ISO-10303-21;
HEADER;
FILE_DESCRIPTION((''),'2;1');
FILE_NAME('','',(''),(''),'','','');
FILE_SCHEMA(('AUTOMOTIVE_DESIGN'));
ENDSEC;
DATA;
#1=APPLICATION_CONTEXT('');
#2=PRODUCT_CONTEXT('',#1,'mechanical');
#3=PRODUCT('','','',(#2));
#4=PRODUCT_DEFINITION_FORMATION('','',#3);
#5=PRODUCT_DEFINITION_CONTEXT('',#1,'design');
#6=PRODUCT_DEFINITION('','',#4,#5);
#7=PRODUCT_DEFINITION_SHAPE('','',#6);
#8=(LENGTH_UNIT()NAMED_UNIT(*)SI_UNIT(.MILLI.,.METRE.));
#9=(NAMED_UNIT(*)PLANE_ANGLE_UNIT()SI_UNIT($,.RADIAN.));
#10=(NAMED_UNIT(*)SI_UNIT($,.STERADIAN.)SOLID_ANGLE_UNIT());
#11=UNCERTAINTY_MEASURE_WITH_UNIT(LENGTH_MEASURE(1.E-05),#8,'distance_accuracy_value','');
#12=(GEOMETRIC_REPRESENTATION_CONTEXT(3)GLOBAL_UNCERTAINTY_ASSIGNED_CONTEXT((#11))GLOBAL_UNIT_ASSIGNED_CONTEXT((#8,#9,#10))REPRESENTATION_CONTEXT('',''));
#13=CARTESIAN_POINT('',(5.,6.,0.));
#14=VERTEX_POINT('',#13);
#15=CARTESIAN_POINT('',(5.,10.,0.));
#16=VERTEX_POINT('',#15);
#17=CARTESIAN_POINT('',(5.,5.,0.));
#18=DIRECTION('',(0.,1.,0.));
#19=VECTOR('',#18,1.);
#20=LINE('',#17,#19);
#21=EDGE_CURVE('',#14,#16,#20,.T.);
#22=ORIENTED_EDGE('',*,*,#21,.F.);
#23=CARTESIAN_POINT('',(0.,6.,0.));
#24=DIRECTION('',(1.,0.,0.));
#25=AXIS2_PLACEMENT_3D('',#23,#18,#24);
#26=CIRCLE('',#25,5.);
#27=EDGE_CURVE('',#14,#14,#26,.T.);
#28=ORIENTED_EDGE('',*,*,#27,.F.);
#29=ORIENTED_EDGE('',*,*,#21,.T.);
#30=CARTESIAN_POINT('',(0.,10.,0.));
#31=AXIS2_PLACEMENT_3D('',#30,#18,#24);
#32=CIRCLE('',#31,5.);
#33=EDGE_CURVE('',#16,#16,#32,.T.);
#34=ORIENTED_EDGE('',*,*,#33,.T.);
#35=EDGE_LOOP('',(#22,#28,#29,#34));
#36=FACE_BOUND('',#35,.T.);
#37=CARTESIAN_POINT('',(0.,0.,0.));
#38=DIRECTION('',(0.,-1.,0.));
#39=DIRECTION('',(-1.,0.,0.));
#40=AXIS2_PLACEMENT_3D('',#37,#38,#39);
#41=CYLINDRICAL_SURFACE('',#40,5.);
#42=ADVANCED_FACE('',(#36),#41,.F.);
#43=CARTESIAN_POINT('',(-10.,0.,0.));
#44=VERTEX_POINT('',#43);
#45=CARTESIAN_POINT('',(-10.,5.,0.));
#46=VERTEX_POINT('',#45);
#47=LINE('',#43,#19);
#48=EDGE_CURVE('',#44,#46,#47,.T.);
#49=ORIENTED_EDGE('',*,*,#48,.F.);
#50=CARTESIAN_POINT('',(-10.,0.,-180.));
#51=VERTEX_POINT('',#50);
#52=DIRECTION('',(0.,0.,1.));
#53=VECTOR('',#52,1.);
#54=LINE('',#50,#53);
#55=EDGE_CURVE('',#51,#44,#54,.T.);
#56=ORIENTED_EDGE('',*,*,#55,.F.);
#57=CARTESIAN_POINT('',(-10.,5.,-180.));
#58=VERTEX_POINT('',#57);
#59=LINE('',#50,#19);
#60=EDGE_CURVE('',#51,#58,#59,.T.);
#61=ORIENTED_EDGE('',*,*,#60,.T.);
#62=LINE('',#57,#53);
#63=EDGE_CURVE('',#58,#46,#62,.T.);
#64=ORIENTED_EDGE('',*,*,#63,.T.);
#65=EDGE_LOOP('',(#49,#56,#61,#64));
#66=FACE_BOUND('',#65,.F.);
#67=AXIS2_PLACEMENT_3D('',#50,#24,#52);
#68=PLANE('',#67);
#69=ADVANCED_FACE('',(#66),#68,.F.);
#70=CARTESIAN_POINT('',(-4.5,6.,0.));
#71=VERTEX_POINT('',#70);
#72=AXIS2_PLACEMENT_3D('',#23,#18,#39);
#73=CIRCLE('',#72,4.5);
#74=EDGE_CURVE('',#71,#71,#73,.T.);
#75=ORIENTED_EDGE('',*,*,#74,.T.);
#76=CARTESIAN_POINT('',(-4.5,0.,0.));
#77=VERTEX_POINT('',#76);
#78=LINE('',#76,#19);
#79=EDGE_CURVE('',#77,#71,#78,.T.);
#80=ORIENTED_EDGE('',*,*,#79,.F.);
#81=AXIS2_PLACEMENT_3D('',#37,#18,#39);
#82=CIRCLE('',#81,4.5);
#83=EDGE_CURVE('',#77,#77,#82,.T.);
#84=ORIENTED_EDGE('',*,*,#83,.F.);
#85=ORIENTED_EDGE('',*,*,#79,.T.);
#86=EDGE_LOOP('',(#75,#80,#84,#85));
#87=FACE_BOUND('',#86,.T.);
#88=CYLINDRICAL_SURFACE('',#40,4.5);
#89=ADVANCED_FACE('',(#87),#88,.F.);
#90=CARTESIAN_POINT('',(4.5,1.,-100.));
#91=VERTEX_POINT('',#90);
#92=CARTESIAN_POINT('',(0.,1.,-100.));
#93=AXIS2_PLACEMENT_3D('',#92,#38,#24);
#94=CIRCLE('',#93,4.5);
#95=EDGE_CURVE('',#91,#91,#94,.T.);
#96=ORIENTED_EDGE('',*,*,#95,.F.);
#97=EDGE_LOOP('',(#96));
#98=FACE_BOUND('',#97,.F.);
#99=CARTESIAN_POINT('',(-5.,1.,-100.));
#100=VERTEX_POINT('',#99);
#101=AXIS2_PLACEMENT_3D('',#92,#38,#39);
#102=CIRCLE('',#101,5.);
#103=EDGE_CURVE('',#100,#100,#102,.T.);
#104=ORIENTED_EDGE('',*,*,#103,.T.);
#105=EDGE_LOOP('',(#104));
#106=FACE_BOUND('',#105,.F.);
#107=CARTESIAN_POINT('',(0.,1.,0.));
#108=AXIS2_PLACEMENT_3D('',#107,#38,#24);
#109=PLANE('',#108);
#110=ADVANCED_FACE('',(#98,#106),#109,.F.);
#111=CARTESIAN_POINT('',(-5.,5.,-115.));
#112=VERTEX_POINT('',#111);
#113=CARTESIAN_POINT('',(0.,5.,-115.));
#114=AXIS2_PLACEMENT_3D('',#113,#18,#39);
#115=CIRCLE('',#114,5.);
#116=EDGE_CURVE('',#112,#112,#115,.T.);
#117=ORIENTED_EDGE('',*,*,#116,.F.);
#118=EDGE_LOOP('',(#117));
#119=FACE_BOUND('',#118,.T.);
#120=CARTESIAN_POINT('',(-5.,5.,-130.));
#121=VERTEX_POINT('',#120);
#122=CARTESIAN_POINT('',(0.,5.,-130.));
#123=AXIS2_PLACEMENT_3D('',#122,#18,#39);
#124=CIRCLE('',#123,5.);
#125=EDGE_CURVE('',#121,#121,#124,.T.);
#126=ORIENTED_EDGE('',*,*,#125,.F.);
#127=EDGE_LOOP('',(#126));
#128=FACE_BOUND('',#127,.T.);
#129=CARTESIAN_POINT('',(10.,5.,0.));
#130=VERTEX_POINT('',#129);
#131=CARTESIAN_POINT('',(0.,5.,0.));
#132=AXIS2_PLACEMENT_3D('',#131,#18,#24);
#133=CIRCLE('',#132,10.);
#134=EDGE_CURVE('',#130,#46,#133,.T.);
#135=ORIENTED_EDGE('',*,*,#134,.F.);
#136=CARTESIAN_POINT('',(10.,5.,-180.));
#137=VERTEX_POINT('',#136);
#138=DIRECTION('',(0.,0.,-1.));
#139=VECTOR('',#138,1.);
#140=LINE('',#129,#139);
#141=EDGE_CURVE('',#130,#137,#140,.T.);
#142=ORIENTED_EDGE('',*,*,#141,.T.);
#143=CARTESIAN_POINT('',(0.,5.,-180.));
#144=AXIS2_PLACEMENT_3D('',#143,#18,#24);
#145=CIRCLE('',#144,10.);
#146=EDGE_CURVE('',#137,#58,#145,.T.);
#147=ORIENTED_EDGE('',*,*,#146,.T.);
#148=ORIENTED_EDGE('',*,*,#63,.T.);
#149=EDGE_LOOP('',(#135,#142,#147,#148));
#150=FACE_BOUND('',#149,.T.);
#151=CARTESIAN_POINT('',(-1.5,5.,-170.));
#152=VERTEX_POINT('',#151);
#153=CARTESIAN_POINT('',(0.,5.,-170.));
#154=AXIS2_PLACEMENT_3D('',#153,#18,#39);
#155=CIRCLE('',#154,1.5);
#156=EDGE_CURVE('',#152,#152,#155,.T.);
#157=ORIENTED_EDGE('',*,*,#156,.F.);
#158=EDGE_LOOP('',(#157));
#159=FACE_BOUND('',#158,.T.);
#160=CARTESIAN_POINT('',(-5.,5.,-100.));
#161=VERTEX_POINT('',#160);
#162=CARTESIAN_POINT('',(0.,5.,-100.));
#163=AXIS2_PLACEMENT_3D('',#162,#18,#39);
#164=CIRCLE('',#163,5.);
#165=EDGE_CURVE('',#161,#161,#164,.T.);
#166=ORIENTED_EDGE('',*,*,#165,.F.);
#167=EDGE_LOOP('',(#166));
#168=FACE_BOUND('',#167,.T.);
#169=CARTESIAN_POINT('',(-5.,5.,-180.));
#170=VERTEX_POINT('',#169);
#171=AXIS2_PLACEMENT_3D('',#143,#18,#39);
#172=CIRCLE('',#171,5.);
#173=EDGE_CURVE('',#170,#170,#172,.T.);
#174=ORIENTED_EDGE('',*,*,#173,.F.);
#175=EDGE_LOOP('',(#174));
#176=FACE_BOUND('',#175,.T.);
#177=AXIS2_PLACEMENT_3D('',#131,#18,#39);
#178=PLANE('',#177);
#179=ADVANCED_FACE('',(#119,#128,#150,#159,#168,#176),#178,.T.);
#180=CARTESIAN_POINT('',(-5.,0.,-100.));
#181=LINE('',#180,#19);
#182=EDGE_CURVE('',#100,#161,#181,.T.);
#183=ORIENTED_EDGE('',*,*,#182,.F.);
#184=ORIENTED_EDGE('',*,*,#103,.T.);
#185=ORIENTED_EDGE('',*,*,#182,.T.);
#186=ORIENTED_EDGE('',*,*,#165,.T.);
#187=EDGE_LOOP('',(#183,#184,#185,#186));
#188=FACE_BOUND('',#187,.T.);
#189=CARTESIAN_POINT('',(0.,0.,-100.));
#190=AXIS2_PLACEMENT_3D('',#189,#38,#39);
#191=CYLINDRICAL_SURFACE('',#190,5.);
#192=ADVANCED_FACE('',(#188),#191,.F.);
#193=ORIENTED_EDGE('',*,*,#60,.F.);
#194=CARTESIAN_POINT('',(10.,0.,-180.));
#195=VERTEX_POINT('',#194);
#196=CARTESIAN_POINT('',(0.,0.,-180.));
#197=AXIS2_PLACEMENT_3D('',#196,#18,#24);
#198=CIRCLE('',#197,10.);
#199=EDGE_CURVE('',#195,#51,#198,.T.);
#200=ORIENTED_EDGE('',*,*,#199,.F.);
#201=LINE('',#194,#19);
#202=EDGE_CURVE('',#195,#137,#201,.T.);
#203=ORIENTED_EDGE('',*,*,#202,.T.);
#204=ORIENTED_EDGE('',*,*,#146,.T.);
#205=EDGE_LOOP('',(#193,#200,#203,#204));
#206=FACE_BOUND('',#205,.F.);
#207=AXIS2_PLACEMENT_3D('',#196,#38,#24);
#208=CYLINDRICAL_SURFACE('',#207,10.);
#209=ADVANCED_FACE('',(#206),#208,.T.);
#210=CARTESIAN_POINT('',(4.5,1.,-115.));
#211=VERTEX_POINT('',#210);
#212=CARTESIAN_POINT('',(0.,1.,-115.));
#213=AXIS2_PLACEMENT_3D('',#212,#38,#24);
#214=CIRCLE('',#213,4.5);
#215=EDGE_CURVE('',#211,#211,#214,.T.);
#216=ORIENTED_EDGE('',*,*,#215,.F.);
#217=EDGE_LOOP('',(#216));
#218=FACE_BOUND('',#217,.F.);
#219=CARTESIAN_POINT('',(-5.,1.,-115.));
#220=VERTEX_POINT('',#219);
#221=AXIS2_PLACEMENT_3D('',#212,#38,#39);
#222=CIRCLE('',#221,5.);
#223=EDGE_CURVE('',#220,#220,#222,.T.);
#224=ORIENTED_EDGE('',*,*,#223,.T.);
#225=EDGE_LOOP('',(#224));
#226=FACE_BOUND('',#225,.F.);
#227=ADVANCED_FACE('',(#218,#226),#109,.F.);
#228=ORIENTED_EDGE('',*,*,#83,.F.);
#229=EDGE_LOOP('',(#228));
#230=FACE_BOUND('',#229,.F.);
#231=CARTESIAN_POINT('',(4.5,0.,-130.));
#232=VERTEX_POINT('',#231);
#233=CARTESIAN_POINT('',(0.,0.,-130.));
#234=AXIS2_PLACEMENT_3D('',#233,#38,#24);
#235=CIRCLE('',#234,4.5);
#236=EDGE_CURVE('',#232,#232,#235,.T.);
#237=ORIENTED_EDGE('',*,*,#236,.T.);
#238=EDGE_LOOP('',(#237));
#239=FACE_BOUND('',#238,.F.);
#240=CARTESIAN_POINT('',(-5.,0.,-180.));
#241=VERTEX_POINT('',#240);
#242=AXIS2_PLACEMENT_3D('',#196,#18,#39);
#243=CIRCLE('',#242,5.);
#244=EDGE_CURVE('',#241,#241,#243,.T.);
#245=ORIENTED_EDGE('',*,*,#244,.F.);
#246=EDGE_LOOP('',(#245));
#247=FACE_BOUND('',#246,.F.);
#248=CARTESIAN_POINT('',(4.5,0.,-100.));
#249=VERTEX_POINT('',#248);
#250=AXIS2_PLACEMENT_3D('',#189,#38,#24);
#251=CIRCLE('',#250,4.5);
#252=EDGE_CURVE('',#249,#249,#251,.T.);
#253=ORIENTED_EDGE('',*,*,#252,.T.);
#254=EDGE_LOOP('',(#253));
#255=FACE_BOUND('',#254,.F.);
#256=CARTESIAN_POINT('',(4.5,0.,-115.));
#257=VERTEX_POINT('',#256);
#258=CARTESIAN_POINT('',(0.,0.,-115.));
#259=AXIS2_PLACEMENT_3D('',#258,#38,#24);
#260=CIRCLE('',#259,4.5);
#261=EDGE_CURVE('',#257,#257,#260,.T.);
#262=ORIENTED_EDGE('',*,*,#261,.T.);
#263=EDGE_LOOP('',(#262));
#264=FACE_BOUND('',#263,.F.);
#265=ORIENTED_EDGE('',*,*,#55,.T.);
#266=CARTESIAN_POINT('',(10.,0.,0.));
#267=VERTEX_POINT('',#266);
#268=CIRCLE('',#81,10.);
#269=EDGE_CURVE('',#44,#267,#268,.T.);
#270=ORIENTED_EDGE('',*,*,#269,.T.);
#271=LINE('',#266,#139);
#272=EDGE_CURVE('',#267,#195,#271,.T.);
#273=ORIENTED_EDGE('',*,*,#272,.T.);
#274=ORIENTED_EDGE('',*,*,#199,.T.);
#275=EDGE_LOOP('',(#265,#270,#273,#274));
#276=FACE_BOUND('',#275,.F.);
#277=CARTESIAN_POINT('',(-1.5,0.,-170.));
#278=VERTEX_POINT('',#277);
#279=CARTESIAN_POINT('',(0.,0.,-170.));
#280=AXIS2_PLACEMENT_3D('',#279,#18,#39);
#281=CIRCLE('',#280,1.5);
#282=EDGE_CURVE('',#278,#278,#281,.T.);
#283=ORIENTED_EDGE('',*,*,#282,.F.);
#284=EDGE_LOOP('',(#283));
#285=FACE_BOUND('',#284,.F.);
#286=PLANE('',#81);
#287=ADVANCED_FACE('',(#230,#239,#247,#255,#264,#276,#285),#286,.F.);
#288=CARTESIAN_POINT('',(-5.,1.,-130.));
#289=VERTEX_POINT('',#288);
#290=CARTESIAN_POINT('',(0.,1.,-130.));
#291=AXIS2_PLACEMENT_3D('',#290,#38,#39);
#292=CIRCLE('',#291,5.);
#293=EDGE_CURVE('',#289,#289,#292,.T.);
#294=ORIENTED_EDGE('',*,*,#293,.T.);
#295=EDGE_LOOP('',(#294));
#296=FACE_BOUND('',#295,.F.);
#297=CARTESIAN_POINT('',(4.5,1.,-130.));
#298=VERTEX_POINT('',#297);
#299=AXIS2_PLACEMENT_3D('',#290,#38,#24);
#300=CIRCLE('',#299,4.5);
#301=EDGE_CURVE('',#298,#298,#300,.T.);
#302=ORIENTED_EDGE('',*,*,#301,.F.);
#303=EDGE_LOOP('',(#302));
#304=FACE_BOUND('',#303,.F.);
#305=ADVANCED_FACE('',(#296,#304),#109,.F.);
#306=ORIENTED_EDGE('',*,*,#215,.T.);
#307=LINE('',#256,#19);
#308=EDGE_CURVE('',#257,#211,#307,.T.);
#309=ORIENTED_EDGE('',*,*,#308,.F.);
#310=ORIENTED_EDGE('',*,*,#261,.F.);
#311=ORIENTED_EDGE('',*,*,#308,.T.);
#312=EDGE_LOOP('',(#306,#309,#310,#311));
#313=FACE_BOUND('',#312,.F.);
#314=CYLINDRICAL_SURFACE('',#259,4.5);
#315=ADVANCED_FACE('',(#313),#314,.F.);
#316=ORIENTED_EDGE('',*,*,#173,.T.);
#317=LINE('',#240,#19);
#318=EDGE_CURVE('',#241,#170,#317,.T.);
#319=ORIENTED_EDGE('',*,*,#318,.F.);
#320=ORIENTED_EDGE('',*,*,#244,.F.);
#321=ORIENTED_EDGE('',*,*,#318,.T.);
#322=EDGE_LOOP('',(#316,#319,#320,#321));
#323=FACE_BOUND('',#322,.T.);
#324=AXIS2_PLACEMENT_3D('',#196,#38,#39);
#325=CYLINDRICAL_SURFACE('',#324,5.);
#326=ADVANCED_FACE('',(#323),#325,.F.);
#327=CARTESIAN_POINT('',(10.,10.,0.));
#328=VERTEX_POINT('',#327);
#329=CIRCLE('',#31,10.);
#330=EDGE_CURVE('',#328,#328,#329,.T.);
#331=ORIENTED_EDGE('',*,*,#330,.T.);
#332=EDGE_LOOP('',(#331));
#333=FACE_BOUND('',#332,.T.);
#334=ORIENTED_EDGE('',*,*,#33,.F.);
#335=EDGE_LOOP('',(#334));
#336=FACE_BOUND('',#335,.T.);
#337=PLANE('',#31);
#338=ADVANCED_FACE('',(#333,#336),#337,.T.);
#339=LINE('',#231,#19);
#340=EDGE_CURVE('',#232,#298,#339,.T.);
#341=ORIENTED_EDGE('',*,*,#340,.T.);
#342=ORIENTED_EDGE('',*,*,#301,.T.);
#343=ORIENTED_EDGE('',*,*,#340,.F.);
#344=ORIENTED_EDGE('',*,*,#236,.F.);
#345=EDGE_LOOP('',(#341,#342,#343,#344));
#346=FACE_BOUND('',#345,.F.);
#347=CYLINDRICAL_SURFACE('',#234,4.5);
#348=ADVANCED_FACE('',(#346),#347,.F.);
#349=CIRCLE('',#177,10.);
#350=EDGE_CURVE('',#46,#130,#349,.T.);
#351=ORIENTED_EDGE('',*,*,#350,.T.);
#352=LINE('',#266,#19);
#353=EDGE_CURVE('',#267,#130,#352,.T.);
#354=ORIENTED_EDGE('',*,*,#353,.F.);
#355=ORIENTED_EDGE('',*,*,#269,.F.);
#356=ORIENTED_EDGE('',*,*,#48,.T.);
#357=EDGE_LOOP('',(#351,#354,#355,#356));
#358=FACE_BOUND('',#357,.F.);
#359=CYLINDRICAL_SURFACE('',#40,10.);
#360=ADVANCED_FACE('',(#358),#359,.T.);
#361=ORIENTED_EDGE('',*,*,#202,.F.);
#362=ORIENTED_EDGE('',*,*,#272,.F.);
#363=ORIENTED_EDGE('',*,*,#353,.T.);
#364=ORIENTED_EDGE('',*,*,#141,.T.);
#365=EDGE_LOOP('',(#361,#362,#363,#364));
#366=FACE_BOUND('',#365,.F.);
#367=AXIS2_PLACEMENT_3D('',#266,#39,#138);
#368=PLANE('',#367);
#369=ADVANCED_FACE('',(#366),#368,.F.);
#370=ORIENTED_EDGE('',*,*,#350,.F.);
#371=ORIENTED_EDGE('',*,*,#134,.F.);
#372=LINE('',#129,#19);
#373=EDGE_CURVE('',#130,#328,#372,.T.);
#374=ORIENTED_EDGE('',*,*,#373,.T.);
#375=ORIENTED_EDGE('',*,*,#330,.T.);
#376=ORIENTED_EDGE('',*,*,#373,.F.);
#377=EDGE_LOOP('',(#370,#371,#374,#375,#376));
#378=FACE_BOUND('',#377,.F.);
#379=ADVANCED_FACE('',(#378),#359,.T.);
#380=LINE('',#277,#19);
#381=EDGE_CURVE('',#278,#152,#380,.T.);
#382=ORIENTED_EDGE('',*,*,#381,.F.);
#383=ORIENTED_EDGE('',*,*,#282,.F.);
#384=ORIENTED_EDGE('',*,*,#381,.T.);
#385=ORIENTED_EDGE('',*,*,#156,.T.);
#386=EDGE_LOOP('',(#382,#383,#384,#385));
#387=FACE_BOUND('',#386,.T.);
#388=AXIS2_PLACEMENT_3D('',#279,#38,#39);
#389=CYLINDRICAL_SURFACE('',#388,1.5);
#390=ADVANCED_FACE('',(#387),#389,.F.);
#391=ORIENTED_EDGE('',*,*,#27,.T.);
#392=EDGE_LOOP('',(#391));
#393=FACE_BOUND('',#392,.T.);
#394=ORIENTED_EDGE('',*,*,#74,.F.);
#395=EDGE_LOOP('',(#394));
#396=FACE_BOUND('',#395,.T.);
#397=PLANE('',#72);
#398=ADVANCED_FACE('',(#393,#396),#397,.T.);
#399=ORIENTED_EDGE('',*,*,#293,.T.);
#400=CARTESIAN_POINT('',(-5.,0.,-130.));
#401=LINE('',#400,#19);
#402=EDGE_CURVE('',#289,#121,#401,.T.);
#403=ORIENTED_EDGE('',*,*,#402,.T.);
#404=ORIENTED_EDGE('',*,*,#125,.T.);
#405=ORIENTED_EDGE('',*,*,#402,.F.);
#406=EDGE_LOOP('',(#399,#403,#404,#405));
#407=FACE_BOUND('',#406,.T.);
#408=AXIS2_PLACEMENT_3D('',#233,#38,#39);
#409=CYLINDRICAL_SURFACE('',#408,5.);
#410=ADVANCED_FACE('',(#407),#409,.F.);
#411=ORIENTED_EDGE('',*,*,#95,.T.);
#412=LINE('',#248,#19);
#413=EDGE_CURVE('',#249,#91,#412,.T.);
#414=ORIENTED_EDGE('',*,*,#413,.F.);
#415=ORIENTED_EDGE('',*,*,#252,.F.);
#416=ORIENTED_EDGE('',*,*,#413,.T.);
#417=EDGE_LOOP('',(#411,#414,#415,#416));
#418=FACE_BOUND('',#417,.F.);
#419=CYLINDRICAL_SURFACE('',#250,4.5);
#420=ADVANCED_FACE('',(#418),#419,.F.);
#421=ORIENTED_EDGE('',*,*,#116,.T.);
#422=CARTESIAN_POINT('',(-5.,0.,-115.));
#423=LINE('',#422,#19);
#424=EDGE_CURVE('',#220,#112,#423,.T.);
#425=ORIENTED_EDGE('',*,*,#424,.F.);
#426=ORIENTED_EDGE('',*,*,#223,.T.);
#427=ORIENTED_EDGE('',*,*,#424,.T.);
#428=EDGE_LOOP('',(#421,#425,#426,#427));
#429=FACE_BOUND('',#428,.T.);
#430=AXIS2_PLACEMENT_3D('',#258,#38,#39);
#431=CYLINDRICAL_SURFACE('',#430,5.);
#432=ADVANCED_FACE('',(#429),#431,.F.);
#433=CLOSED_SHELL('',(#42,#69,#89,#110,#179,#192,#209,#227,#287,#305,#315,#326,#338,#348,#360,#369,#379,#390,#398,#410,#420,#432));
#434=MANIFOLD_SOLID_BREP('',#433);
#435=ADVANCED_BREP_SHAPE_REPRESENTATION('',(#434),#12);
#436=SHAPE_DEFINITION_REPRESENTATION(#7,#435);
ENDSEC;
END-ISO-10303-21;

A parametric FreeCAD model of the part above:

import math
import FreeCAD as App
import Part
import Sketcher

V = App.Vector
Q = App.Units.Quantity

doc = App.newDocument("Part")
body = doc.addObject("PartDesign::Body", "Body")

# Sketch on XZ plane
sketch1 = body.newObject("Sketcher::SketchObject", "Sketch")
sketch1.AttachmentSupport = (doc.getObject("XZ_Plane"), [""])
sketch1.MapMode = "FlatFace"
sketch1.addGeometry(Part.ArcOfCircle(Part.Circle(V(0, 0, 0), V(0, 0, 1), 10), math.radians(0), math.radians(180)), False)
sketch1.addGeometry(Part.LineSegment(V(10, 0, 0), V(10, -180, 0)), False)
sketch1.addGeometry(Part.ArcOfCircle(Part.Circle(V(0, -180, 0), V(0, 0, 1), 10), math.radians(180), math.radians(360)), False)
sketch1.addGeometry(Part.LineSegment(V(-10, -180, 0), V(-10, 0, 0)), False)
sketch1.addGeometry(Part.Circle(V(0, -180, 0), V(0, 0, 1), 5), False)
sketch1.addGeometry(Part.Circle(V(0, -170, 0), V(0, 0, 1), 1.5), False)
sketch1.addGeometry(Part.Circle(V(0, -130, 0), V(0, 0, 1), 5), False)
sketch1.addGeometry(Part.Circle(V(0, -115, 0), V(0, 0, 1), 5), False)
sketch1.addGeometry(Part.Circle(V(0, -100, 0), V(0, 0, 1), 5), False)
sketch1.addGeometry(Part.Circle(V(0, 0, 0), V(0, 0, 1), 5), False)
sketch1.addConstraint(Sketcher.Constraint("Tangent", 0, 1, 1, 1))
sketch1.addConstraint(Sketcher.Constraint("Tangent", 1, 2, 2, 2))
sketch1.addConstraint(Sketcher.Constraint("Tangent", 2, 1, 3, 1))
sketch1.addConstraint(Sketcher.Constraint("Tangent", 3, 2, 0, 2))
sketch1.addConstraint(Sketcher.Constraint("Vertical", 1))
sketch1.addConstraint(Sketcher.Constraint("Vertical", 3))
sketch1.addConstraint(Sketcher.Constraint("Coincident", 0, 3, -1, 1))
sketch1.addConstraint(Sketcher.Constraint("Coincident", 9, 3, -1, 1))
sketch1.addConstraint(Sketcher.Constraint("Coincident", 4, 3, 2, 3))
sketch1.addConstraint(Sketcher.Constraint("Equal", 4, 6))
sketch1.addConstraint(Sketcher.Constraint("Equal", 6, 7))
sketch1.addConstraint(Sketcher.Constraint("Equal", 7, 8))
sketch1.addConstraint(Sketcher.Constraint("Equal", 8, 9))
sketch1.addConstraint(Sketcher.Constraint("PointOnObject", 5, 3, -2))
sketch1.addConstraint(Sketcher.Constraint("PointOnObject", 6, 3, -2))
sketch1.addConstraint(Sketcher.Constraint("PointOnObject", 7, 3, -2))
sketch1.addConstraint(Sketcher.Constraint("PointOnObject", 8, 3, -2))
sketch1.addConstraint(Sketcher.Constraint("Diameter", 4, Q("10 mm")))
sketch1.addConstraint(Sketcher.Constraint("Diameter", 5, Q("3 mm")))
sketch1.addConstraint(Sketcher.Constraint("Radius", 0, Q("10 mm")))
sketch1.addConstraint(Sketcher.Constraint("DistanceY", 1, 2, 1, 1, Q("180 mm")))
sketch1.addConstraint(Sketcher.Constraint("DistanceY", 2, 3, 5, 3, Q("10 mm")))
sketch1.addConstraint(Sketcher.Constraint("DistanceY", 2, 3, 6, 3, Q("50 mm")))
sketch1.addConstraint(Sketcher.Constraint("DistanceY", 6, 3, 7, 3, Q("15 mm")))
sketch1.addConstraint(Sketcher.Constraint("DistanceY", 7, 3, 8, 3, Q("15 mm")))
pad1 = body.newObject("PartDesign::Pad", "Pad")
pad1.Profile = sketch1
pad1.Length = 5
pad1.Reversed = True

# Sketch on XZ plane
sketch2 = body.newObject("Sketcher::SketchObject", "Sketch001")
sketch2.AttachmentSupport = (doc.getObject("XZ_Plane"), [""])
sketch2.MapMode = "FlatFace"
sketch2.AttachmentOffset = App.Placement(V(0, 0, -5), App.Rotation())
sketch2.addGeometry(Part.Circle(V(0, 0, 0), V(0, 0, 1), 10), False)
sketch2.addGeometry(Part.Circle(V(0, 0, 0), V(0, 0, 1), 5), False)
sketch2.addConstraint(Sketcher.Constraint("Coincident", 0, 3, -1, 1))
sketch2.addConstraint(Sketcher.Constraint("Coincident", 1, 3, -1, 1))
sketch2.addConstraint(Sketcher.Constraint("Diameter", 0, Q("20 mm")))
sketch2.addConstraint(Sketcher.Constraint("Diameter", 1, Q("10 mm")))
pad2 = body.newObject("PartDesign::Pad", "Pad001")
pad2.Profile = sketch2
pad2.Length = 5
pad2.Reversed = True

# Sketch on XZ plane
sketch3 = body.newObject("Sketcher::SketchObject", "Sketch002")
sketch3.AttachmentSupport = (doc.getObject("XZ_Plane"), [""])
sketch3.MapMode = "FlatFace"
sketch3.addGeometry(Part.Circle(V(0, 0, 0), V(0, 0, 1), 5), False)
sketch3.addGeometry(Part.Circle(V(0, 0, 0), V(0, 0, 1), 4.5), False)
sketch3.addConstraint(Sketcher.Constraint("Coincident", 0, 3, -1, 1))
sketch3.addConstraint(Sketcher.Constraint("Coincident", 1, 3, -1, 1))
sketch3.addConstraint(Sketcher.Constraint("Diameter", 0, Q("10 mm")))
sketch3.addConstraint(Sketcher.Constraint("Diameter", 1, Q("9 mm")))
pad3 = body.newObject("PartDesign::Pad", "Pad002")
pad3.Profile = sketch3
pad3.Length = 6
pad3.Reversed = True

# Sketch on XZ plane
sketch4 = body.newObject("Sketcher::SketchObject", "Sketch003")
sketch4.AttachmentSupport = (doc.getObject("XZ_Plane"), [""])
sketch4.MapMode = "FlatFace"
sketch4.addGeometry(Part.Circle(V(0, -130, 0), V(0, 0, 1), 5), False)
sketch4.addGeometry(Part.Circle(V(0, -130, 0), V(0, 0, 1), 4.5), False)
sketch4.addGeometry(Part.Circle(V(0, -100, 0), V(0, 0, 1), 5), False)
sketch4.addGeometry(Part.Circle(V(0, -100, 0), V(0, 0, 1), 4.5), False)
sketch4.addGeometry(Part.Circle(V(0, -115, 0), V(0, 0, 1), 5), False)
sketch4.addGeometry(Part.Circle(V(0, -115, 0), V(0, 0, 1), 4.5), False)
sketch4.addConstraint(Sketcher.Constraint("Coincident", 1, 3, 0, 3))
sketch4.addConstraint(Sketcher.Constraint("Coincident", 3, 3, 2, 3))
sketch4.addConstraint(Sketcher.Constraint("Coincident", 5, 3, 4, 3))
sketch4.addConstraint(Sketcher.Constraint("Equal", 0, 2))
sketch4.addConstraint(Sketcher.Constraint("Equal", 1, 3))
sketch4.addConstraint(Sketcher.Constraint("Equal", 2, 4))
sketch4.addConstraint(Sketcher.Constraint("Equal", 3, 5))
sketch4.addConstraint(Sketcher.Constraint("PointOnObject", 0, 3, -2))
sketch4.addConstraint(Sketcher.Constraint("PointOnObject", 2, 3, -2))
sketch4.addConstraint(Sketcher.Constraint("PointOnObject", 4, 3, -2))
sketch4.addConstraint(Sketcher.Constraint("Diameter", 1, Q("9 mm")))
sketch4.addConstraint(Sketcher.Constraint("Diameter", 0, Q("10 mm")))
sketch4.addConstraint(Sketcher.Constraint("DistanceY", 0, 3, -1, 1, Q("130 mm")))
sketch4.addConstraint(Sketcher.Constraint("DistanceY", 2, 3, -1, 1, Q("100 mm")))
sketch4.addConstraint(Sketcher.Constraint("DistanceY", 4, 3, -1, 1, Q("115 mm")))
pad4 = body.newObject("PartDesign::Pad", "Pad003")
pad4.Profile = sketch4
pad4.Length = 1
pad4.Reversed = True

doc.recompute()
